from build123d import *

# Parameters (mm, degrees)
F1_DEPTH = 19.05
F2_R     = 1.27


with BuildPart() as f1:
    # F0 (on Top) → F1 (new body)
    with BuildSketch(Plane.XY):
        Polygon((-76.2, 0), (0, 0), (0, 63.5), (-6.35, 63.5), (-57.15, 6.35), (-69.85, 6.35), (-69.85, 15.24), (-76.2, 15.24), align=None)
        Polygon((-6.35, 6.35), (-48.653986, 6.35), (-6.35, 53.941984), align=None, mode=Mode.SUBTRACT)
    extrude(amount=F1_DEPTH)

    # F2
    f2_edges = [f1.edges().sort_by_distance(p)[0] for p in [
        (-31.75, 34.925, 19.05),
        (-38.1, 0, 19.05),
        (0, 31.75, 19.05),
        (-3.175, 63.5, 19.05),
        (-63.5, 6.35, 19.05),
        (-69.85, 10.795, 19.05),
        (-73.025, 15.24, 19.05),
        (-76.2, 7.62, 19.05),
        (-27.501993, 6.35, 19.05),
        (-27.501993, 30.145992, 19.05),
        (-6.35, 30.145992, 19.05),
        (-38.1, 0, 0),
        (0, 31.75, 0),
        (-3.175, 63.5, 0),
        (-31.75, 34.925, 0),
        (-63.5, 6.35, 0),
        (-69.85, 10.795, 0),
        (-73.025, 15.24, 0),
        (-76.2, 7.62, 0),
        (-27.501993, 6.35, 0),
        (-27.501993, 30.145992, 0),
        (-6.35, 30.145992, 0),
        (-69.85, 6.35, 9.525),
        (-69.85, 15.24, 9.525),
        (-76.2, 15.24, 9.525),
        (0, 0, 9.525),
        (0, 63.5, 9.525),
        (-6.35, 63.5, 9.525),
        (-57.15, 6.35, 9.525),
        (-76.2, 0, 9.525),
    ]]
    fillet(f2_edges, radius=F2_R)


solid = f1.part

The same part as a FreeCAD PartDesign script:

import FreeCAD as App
import Part
import Sketcher
Q = App.Units.Quantity


def edges_at(feature, points):
    """Names of the edges that pass closest to the given points."""
    edges = feature.Shape.Edges
    near = lambda p: min(range(len(edges)), key=lambda i: edges[i].distToShape(Part.Vertex(*p))[0])
    return sorted({f"Edge{near(p) + 1}" for p in points})

doc = App.newDocument("Part")
body = doc.addObject("PartDesign::Body", "Body")

# Sketch on XY plane
sketch1 = body.newObject("Sketcher::SketchObject", "Sketch")
sketch1.AttachmentSupport = (doc.getObject("XY_Plane"), [""])
sketch1.MapMode = "FlatFace"
sketch1.addGeometry([
    Part.LineSegment(App.Vector(-76, 0, 0), App.Vector(0, 0, 0)),  # 0
    Part.LineSegment(App.Vector(0, 0, 0), App.Vector(0, 64, 0)),  # 1
    Part.LineSegment(App.Vector(0, 64, 0), App.Vector(-6, 64, 0)),  # 2
    Part.LineSegment(App.Vector(-6, 64, 0), App.Vector(-57, 6, 0)),  # 3
    Part.LineSegment(App.Vector(-57, 6, 0), App.Vector(-70, 6, 0)),  # 4
    Part.LineSegment(App.Vector(-70, 6, 0), App.Vector(-70, 15, 0)),  # 5
    Part.LineSegment(App.Vector(-70, 15, 0), App.Vector(-76, 15, 0)),  # 6
    Part.LineSegment(App.Vector(-76, 15, 0), App.Vector(-76, 0, 0)),  # 7
    Part.LineSegment(App.Vector(-6, 54, 0), App.Vector(-6, 6, 0)),  # 8
    Part.LineSegment(App.Vector(-6, 6, 0), App.Vector(-49, 6, 0)),  # 9
    Part.LineSegment(App.Vector(-49, 6, 0), App.Vector(-6, 54, 0)),  # 10
], False)
sketch1.addConstraint([
    Sketcher.Constraint("Coincident", 0, 2, 1, 1),
    Sketcher.Constraint("Coincident", 1, 2, 2, 1),
    Sketcher.Constraint("Coincident", 2, 2, 3, 1),
    Sketcher.Constraint("Coincident", 3, 2, 4, 1),
    Sketcher.Constraint("Coincident", 4, 2, 5, 1),
    Sketcher.Constraint("Coincident", 5, 2, 6, 1),
    Sketcher.Constraint("Coincident", 6, 2, 7, 1),
    Sketcher.Constraint("Coincident", 7, 2, 0, 1),
    Sketcher.Constraint("Coincident", 8, 2, 9, 1),
    Sketcher.Constraint("Coincident", 9, 2, 10, 1),
    Sketcher.Constraint("Coincident", 10, 2, 8, 1),
    Sketcher.Constraint("Horizontal", 0),
    Sketcher.Constraint("Vertical", 1),
    Sketcher.Constraint("Horizontal", 2),
    Sketcher.Constraint("Horizontal", 4),
    Sketcher.Constraint("Vertical", 5),
    Sketcher.Constraint("Horizontal", 6),
    Sketcher.Constraint("Vertical", 7),
    Sketcher.Constraint("Vertical", 8),
    Sketcher.Constraint("Horizontal", 9),
    Sketcher.Constraint("Coincident", 0, 2, -1, 1),
    Sketcher.Constraint("Parallel", 3, 10),
    Sketcher.Constraint("Horizontal", 4, 2, 8, 2),
    Sketcher.Constraint("Vertical", 2, 2, 8, 2),
    Sketcher.Constraint("Equal", 2, 6),
    Sketcher.Constraint("DistanceX", 0, 1, 0, 2, Q("3 in")),
    Sketcher.Constraint("DistanceX", 4, 2, 4, 1, Q("0.5 in")),
    Sketcher.Constraint("DistanceY", 1, 1, 1, 2, Q("2.5 in")),
    Sketcher.Constraint("DistanceY", 7, 2, 7, 1, Q("0.6 in")),
    Sketcher.Constraint("DistanceX", 3, 2, 2, 2, Q("2 in")),
    Sketcher.Constraint("DistanceY", 5, 1, 5, 2, Q("0.35 in")),
    Sketcher.Constraint("DistanceY", 8, 2, 8, 1, Q("1.8737002 in")),
])
pad1 = body.newObject("PartDesign::Pad", "Pad")
pad1.Profile = sketch1
pad1.Length = Q("0.75 in")
doc.recompute()

fillet = body.newObject("PartDesign::Fillet", "Fillet")
fillet.Base = (pad1, edges_at(pad1, [
    (-31.75, 34.925, 19.05),
    (-38.1, 0, 19.05),
    (0, 31.75, 19.05),
    (-3.175, 63.5, 19.05),
    (-63.5, 6.35, 19.05),
    (-69.85, 10.795, 19.05),
    (-73.025, 15.24, 19.05),
    (-76.2, 7.62, 19.05),
    (-27.502, 6.35, 19.05),
    (-27.502, 30.146, 19.05),
    (-6.35, 30.146, 19.05),
    (-38.1, 0, 0),
    (0, 31.75, 0),
    (-3.175, 63.5, 0),
    (-31.75, 34.925, 0),
    (-63.5, 6.35, 0),
    (-69.85, 10.795, 0),
    (-73.025, 15.24, 0),
    (-76.2, 7.62, 0),
    (-27.502, 6.35, 0),
    (-27.502, 30.146, 0),
    (-6.35, 30.146, 0),
    (-69.85, 6.35, 9.525),
    (-69.85, 15.24, 9.525),
    (-76.2, 15.24, 9.525),
    (0, 0, 9.525),
    (0, 63.5, 9.525),
    (-6.35, 63.5, 9.525),
    (-57.15, 6.35, 9.525),
    (-76.2, 0, 9.525),
]))
fillet.Radius = Q("0.05 in")

doc.recompute()
